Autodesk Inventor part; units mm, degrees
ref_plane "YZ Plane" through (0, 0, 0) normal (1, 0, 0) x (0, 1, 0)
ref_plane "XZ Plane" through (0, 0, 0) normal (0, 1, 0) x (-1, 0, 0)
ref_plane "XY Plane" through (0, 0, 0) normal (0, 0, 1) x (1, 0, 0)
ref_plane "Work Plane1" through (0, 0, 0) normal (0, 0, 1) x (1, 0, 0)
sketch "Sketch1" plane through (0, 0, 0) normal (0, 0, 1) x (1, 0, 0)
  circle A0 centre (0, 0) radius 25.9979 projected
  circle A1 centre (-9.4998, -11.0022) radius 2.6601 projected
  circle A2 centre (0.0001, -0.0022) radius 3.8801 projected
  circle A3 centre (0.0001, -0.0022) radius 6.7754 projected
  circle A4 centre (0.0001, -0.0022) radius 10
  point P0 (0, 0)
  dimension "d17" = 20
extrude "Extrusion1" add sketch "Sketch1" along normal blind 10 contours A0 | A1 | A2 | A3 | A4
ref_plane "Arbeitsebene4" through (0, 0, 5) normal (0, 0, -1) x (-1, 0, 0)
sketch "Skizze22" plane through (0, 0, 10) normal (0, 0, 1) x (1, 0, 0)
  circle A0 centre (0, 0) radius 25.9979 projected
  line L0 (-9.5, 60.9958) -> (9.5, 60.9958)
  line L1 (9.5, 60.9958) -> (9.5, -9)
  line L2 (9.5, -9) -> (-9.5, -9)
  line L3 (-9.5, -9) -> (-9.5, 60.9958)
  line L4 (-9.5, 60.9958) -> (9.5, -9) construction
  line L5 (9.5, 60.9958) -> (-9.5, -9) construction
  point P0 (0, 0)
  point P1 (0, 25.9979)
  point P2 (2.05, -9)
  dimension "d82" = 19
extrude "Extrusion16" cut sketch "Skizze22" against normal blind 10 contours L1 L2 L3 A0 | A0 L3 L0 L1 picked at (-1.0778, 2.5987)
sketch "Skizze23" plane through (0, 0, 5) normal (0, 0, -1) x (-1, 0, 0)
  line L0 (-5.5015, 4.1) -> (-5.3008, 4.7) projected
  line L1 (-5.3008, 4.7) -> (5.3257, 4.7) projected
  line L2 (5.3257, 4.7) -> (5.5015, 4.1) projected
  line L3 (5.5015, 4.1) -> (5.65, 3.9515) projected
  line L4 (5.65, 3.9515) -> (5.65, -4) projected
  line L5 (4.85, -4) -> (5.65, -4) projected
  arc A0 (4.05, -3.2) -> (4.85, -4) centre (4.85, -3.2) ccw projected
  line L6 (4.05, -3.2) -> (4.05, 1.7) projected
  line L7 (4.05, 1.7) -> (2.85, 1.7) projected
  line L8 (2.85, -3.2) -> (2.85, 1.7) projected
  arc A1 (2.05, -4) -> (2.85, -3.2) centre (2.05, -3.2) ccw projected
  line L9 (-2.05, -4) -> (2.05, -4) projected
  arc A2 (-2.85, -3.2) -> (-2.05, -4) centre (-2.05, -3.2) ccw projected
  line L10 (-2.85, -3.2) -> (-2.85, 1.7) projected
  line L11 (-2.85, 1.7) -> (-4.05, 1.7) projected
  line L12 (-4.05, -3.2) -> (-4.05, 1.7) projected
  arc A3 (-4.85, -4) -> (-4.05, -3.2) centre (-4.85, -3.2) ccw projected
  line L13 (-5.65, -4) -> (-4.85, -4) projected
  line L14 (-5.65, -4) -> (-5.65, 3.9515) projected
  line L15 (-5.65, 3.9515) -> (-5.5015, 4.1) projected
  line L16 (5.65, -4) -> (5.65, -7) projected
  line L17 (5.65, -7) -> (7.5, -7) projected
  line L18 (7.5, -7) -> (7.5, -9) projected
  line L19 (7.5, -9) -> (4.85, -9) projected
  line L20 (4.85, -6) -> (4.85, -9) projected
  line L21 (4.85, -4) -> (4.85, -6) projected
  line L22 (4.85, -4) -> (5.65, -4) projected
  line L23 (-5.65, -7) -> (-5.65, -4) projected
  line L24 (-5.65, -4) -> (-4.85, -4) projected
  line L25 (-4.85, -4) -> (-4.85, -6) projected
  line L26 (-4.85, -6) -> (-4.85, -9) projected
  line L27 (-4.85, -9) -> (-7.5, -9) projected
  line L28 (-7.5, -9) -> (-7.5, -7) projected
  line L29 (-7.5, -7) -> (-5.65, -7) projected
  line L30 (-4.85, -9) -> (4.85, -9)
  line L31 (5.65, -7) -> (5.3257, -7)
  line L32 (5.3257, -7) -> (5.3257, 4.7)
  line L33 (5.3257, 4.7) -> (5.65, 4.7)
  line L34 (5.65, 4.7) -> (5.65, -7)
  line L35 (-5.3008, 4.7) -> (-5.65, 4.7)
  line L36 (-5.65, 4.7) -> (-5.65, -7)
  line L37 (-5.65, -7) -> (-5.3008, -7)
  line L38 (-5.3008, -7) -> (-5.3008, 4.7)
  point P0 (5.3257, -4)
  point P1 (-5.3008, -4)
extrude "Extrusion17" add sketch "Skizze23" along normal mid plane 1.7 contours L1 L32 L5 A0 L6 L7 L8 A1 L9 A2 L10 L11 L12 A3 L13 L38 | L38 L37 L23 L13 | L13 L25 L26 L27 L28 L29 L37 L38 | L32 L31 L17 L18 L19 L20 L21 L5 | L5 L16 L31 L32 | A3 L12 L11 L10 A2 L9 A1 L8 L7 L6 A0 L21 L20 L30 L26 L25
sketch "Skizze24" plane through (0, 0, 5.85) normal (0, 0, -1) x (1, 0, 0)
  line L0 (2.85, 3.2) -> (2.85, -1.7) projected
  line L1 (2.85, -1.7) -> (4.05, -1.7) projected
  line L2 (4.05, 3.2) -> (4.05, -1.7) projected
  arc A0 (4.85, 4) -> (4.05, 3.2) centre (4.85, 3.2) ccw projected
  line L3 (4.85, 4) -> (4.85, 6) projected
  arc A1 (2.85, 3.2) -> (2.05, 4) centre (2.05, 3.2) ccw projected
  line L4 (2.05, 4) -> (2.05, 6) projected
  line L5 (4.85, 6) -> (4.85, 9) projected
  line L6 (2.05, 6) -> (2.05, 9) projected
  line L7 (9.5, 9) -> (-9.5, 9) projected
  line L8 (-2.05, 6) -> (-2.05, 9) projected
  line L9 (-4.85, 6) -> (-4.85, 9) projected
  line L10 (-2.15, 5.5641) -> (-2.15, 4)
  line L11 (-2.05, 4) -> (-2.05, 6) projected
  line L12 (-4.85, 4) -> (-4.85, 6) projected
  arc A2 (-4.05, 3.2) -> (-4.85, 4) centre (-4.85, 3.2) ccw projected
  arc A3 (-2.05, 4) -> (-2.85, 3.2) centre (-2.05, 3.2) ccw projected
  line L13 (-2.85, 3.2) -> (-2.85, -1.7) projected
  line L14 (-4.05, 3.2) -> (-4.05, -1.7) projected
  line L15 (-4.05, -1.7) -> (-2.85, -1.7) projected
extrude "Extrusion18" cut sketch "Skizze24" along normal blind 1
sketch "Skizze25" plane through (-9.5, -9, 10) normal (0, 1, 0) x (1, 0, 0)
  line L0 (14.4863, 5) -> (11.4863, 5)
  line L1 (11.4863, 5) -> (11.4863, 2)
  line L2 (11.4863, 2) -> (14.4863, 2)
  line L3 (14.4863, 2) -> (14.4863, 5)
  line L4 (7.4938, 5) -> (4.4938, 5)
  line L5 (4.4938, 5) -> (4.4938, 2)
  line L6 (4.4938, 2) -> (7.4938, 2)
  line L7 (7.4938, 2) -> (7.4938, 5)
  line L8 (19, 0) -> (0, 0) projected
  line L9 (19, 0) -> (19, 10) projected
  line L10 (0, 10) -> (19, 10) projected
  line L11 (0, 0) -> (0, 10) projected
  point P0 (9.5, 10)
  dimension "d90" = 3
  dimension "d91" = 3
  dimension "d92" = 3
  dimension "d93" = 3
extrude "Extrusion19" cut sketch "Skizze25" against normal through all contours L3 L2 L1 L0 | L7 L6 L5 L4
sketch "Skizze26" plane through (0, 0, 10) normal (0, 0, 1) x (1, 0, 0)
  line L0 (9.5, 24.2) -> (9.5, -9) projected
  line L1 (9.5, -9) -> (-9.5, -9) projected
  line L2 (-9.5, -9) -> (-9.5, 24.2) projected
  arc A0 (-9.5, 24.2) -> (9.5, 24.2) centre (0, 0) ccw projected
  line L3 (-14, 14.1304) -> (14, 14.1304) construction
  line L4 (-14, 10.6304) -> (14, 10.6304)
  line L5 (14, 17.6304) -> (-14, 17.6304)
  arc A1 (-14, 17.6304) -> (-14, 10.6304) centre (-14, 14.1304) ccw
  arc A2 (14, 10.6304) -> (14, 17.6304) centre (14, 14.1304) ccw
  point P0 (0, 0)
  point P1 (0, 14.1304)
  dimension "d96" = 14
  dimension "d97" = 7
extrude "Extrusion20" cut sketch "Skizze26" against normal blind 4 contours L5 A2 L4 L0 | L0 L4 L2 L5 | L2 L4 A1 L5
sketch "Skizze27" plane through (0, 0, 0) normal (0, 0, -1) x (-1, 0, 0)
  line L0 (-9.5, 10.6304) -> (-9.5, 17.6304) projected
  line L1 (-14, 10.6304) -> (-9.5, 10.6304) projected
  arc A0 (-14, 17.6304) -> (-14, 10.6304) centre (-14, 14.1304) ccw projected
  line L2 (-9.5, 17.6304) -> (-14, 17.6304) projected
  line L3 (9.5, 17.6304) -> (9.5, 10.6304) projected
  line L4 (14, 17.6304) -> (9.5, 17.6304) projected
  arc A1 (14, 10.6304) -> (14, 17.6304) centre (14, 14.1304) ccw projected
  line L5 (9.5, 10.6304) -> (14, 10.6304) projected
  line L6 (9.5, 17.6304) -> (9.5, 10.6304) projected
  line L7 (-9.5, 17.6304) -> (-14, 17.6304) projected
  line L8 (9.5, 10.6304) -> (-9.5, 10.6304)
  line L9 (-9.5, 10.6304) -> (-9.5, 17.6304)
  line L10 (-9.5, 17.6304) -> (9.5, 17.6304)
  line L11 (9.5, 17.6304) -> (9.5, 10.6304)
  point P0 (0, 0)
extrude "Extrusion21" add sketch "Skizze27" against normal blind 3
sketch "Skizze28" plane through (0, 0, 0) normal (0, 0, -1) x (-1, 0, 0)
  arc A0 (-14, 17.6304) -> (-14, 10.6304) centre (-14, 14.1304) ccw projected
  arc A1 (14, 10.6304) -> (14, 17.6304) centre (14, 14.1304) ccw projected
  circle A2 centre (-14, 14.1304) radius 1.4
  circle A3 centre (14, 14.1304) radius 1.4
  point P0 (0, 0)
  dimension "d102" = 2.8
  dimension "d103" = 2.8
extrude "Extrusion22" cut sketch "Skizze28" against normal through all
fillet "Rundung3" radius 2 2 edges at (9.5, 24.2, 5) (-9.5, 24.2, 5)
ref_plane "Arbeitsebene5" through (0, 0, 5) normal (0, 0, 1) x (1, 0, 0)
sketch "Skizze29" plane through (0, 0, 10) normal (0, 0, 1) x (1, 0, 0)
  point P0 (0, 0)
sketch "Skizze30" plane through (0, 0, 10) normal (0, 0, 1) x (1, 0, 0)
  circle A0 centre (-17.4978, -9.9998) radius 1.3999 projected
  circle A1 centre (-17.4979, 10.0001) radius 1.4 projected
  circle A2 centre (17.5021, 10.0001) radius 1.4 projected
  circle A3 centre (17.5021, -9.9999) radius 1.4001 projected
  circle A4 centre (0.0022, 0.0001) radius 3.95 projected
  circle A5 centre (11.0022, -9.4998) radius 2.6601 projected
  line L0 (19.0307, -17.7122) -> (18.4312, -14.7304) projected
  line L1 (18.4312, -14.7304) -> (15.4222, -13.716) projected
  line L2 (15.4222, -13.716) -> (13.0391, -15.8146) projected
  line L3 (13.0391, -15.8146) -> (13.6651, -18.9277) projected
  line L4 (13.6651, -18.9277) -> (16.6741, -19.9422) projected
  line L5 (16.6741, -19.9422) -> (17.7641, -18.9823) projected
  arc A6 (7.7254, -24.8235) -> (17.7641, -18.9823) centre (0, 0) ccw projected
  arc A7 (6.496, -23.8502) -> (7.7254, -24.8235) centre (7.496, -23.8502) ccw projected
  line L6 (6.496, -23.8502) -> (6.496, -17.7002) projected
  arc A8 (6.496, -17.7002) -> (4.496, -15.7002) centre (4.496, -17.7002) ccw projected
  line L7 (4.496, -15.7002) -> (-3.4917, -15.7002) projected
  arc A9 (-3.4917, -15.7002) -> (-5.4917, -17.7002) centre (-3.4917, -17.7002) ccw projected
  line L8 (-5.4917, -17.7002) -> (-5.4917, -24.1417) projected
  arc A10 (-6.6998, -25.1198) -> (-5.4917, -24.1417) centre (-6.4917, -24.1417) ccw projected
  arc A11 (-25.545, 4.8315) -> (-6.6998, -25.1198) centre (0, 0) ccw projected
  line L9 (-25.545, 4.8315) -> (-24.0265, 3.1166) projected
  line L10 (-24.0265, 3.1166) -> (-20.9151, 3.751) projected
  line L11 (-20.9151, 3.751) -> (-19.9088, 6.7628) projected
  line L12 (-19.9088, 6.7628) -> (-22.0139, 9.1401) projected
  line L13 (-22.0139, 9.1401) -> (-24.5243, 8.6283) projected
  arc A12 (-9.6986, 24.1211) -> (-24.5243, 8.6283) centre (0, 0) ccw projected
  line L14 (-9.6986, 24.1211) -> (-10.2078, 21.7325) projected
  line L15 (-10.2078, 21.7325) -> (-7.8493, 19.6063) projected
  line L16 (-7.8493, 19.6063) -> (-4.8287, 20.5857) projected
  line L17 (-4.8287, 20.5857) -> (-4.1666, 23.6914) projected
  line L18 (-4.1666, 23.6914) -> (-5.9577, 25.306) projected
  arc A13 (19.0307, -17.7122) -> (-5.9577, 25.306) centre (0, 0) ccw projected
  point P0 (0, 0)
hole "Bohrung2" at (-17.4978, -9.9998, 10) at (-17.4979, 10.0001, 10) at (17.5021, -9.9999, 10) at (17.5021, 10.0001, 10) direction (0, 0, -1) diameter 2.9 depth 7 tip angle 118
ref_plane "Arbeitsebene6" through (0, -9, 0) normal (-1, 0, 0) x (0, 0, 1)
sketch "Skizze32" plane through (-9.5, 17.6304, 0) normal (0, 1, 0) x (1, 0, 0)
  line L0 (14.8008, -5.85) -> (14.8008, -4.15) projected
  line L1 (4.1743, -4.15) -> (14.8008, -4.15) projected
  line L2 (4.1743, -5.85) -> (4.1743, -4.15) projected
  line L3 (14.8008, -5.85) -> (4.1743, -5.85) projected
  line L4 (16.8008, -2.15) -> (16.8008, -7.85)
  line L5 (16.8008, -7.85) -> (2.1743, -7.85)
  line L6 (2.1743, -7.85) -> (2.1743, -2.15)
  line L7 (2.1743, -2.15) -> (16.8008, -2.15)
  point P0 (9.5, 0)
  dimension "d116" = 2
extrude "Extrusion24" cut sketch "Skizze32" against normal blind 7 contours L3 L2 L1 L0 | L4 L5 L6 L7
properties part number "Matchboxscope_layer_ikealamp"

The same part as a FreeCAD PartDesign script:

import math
import FreeCAD as App
import Part
import Sketcher

V = App.Vector


def edges_at(feature, points):
    """Names of the edges that pass closest to the given points."""
    edges = feature.Shape.Edges
    near = lambda p: min(range(len(edges)), key=lambda i: edges[i].distToShape(Part.Vertex(*p))[0])
    return sorted({f"Edge{near(p) + 1}" for p in points})


def add_polygon(sketch, points):
    """Adds a closed chain of lines whose ends are joined by coincident constraints."""
    first, n = sketch.GeometryCount, len(points)
    for a, b in zip(points, points[1:] + points[:1]):
        sketch.addGeometry(Part.LineSegment(App.Vector(*a, 0), App.Vector(*b, 0)), False)
    for i in range(n):
        sketch.addConstraint(Sketcher.Constraint("Coincident", first + i, 2, first + (i + 1) % n, 1))

doc = App.newDocument("Part")
body = doc.addObject("PartDesign::Body", "Body")

# Sketch on XY plane
sketch1 = body.newObject("Sketcher::SketchObject", "Sketch")
sketch1.AttachmentSupport = (doc.getObject("XY_Plane"), [""])
sketch1.MapMode = "FlatFace"
sketch1.addGeometry(Part.Circle(V(0, 0, 0), V(0, 0, 1), 25.9979), False)
sketch1.addConstraint([
    Sketcher.Constraint("Coincident", 0, 3, -1, 1),
    Sketcher.Constraint("Diameter", 0, 51.9958),
])
pad1 = body.newObject("PartDesign::Pad", "Pad")
pad1.Profile = sketch1
pad1.Length = 10

# Sketch on XY plane
sketch2 = body.newObject("Sketcher::SketchObject", "Sketch001")
sketch2.AttachmentSupport = (doc.getObject("XY_Plane"), [""])
sketch2.MapMode = "FlatFace"
sketch2.AttachmentOffset = App.Placement(V(0, 0, 10), App.Rotation())
add_polygon(sketch2, [(9.5, -9), (9.5, 60.9958), (-9.5, 60.9958), (-9.5, -9)])  # lines 0-3
sketch2.addConstraint([
    Sketcher.Constraint("Vertical", 0),
    Sketcher.Constraint("Horizontal", 1),
    Sketcher.Constraint("Vertical", 2),
    Sketcher.Constraint("Horizontal", 3),
    Sketcher.Constraint("DistanceX", 1, 2, 1, 1, 19.0),
    Sketcher.Constraint("DistanceY", 2, 2, -1, 1, 9.0),
    Sketcher.Constraint("DistanceX", -1, 1, 0, 2, 9.5),
    Sketcher.Constraint("DistanceY", 0, 1, 0, 2, 69.9958),
])
pocket1 = body.newObject("PartDesign::Pocket", "Pocket")
pocket1.Profile = sketch2
pocket1.Length = 10

# Sketch on XY plane
sketch3 = body.newObject("Sketcher::SketchObject", "Sketch002")
sketch3.AttachmentSupport = (doc.getObject("XY_Plane"), [""])
sketch3.MapMode = "FlatFace"
sketch3.AttachmentOffset = App.Placement(V(0, 0, 5), App.Rotation())
add_polygon(sketch3, [(-5.3257, 4.7), (5.3008, 4.7), (5.3008, -4), (5.65, -4), (5.65, -7), (7.5, -7), (7.5, -9), (-7.5, -9), (-7.5, -7), (-5.65, -7), (-5.65, -4), (-5.3257, -4)])  # lines 0-11
sketch3.addConstraint([
    Sketcher.Constraint("Horizontal", 0),
    Sketcher.Constraint("Vertical", 1),
    Sketcher.Constraint("Horizontal", 2),
    Sketcher.Constraint("Vertical", 3),
    Sketcher.Constraint("Horizontal", 4),
    Sketcher.Constraint("Vertical", 5),
    Sketcher.Constraint("Horizontal", 6),
    Sketcher.Constraint("Vertical", 7),
    Sketcher.Constraint("Horizontal", 8),
    Sketcher.Constraint("Vertical", 9),
    Sketcher.Constraint("Horizontal", 10),
    Sketcher.Constraint("Vertical", 11),
    Sketcher.Constraint("Symmetric", 4, 2, 7, 2, -2),
    Sketcher.Constraint("Symmetric", 2, 2, 9, 2, -2),
    Sketcher.Constraint("DistanceX", 6, 2, 6, 1, 15.0),
    Sketcher.Constraint("DistanceY", 3, 2, 3, 1, 3.0),
    Sketcher.Constraint("DistanceY", 5, 2, 5, 1, 2.0),
    Sketcher.Constraint("DistanceY", 1, 2, 1, 1, 8.7),
    Sketcher.Constraint("DistanceY", 1, 2, -1, 1, 4.0),
    Sketcher.Constraint("DistanceX", 4, 1, 4, 2, 1.85),
    Sketcher.Constraint("DistanceX", 0, 1, 0, 2, 10.6265),
    Sketcher.Constraint("DistanceX", 2, 1, 2, 2, 0.3492),
])
pad2 = body.newObject("PartDesign::Pad", "Pad001")
pad2.Profile = sketch3
pad2.Length = 1.7
pad2.Midplane = True

# Sketch on XY plane
sketch4 = body.newObject("Sketcher::SketchObject", "Sketch003")
sketch4.AttachmentSupport = (doc.getObject("XY_Plane"), [""])
sketch4.MapMode = "FlatFace"
sketch4.AttachmentOffset = App.Placement(V(0, 0, 5.85), App.Rotation())
sketch4.addGeometry([
    Part.ArcOfCircle(Part.Circle(V(2.05, -3.2, 0), V(0, 0, 1), 0.8), math.radians(-90), math.radians(0)),  # 0
    Part.LineSegment(V(2.85, -3.2, 0), V(2.85, 1.7, 0)),  # 1
    Part.LineSegment(V(2.85, 1.7, 0), V(4.05, 1.7, 0)),  # 2
    Part.LineSegment(V(4.05, 1.7, 0), V(4.05, -3.2, 0)),  # 3
    Part.ArcOfCircle(Part.Circle(V(4.85, -3.2, 0), V(0, 0, 1), 0.8), math.radians(180), math.radians(270)),  # 4
    Part.LineSegment(V(4.85, -4, 0), V(4.85, -9, 0)),  # 5
    Part.LineSegment(V(4.85, -9, 0), V(2.05, -9, 0)),  # 6
    Part.LineSegment(V(2.05, -9, 0), V(2.05, -4, 0)),  # 7
    Part.LineSegment(V(-2.05, -4, 0), V(-2.05, -9, 0)),  # 8
    Part.LineSegment(V(-2.05, -9, 0), V(-4.85, -9, 0)),  # 9
    Part.LineSegment(V(-4.85, -9, 0), V(-4.85, -4, 0)),  # 10
    Part.ArcOfCircle(Part.Circle(V(-4.85, -3.2, 0), V(0, 0, 1), 0.8), math.radians(-90), math.radians(0)),  # 11
    Part.LineSegment(V(-4.05, -3.2, 0), V(-4.05, 1.7, 0)),  # 12
    Part.LineSegment(V(-4.05, 1.7, 0), V(-2.85, 1.7, 0)),  # 13
    Part.LineSegment(V(-2.85, 1.7, 0), V(-2.85, -3.2, 0)),  # 14
    Part.ArcOfCircle(Part.Circle(V(-2.05, -3.2, 0), V(0, 0, 1), 0.8), math.radians(180), math.radians(270)),  # 15
], False)
sketch4.addConstraint([
    Sketcher.Constraint("Tangent", 0, 2, 1, 1),
    Sketcher.Constraint("Coincident", 1, 2, 2, 1),
    Sketcher.Constraint("Coincident", 2, 2, 3, 1),
    Sketcher.Constraint("Tangent", 3, 2, 4, 1),
    Sketcher.Constraint("Coincident", 4, 2, 5, 1),
    Sketcher.Constraint("Coincident", 5, 2, 6, 1),
    Sketcher.Constraint("Coincident", 6, 2, 7, 1),
    Sketcher.Constraint("Coincident", 7, 2, 0, 1),
    Sketcher.Constraint("Coincident", 8, 2, 9, 1),
    Sketcher.Constraint("Coincident", 9, 2, 10, 1),
    Sketcher.Constraint("Coincident", 10, 2, 11, 1),
    Sketcher.Constraint("Tangent", 11, 2, 12, 1),
    Sketcher.Constraint("Coincident", 12, 2, 13, 1),
    Sketcher.Constraint("Coincident", 13, 2, 14, 1),
    Sketcher.Constraint("Tangent", 14, 2, 15, 1),
    Sketcher.Constraint("Coincident", 15, 2, 8, 1),
    Sketcher.Constraint("Vertical", 1),
    Sketcher.Constraint("Horizontal", 2),
    Sketcher.Constraint("Vertical", 3),
    Sketcher.Constraint("Vertical", 5),
    Sketcher.Constraint("Horizontal", 6),
    Sketcher.Constraint("Vertical", 7),
    Sketcher.Constraint("Vertical", 8),
    Sketcher.Constraint("Horizontal", 9),
    Sketcher.Constraint("Vertical", 10),
    Sketcher.Constraint("Vertical", 12),
    Sketcher.Constraint("Horizontal", 13),
    Sketcher.Constraint("Vertical", 14),
    Sketcher.Constraint("Equal", 0, 4),
    Sketcher.Constraint("Equal", 4, 11),
    Sketcher.Constraint("Equal", 11, 15),
    Sketcher.Constraint("Symmetric", 4, 3, 11, 3, -2),
    Sketcher.Constraint("Symmetric", 0, 3, 15, 3, -2),
    Sketcher.Constraint("Symmetric", 6, 2, 8, 2, -2),
    Sketcher.Constraint("Horizontal", 0, 3, 4, 3),
    Sketcher.Constraint("Horizontal", 2, 2, 12, 2),
    Sketcher.Constraint("Vertical", 0, 3, 6, 2),
    Sketcher.Constraint("Vertical", 11, 3, 9, 2),
    Sketcher.Constraint("Equal", 6, 9),
    Sketcher.Constraint("Radius", 0, 0.8),
    Sketcher.Constraint("DistanceY", 5, 2, 5, 1, 5.0),
    Sketcher.Constraint("DistanceX", 2, 1, 2, 2, 1.2),
    Sketcher.Constraint("DistanceY", 1, 1, 1, 2, 4.9),
    Sketcher.Constraint("DistanceY", 4, 2, -1, 1, 4.0),
    Sketcher.Constraint("DistanceX", 11, 3, 0, 3, 6.9),
])
pocket2 = body.newObject("PartDesign::Pocket", "Pocket001")
pocket2.Profile = sketch4
pocket2.Length = 1

# Sketch on XZ plane
sketch5 = body.newObject("Sketcher::SketchObject", "Sketch004")
sketch5.AttachmentSupport = (doc.getObject("XZ_Plane"), [""])
sketch5.MapMode = "FlatFace"
sketch5.AttachmentOffset = App.Placement(V(0, 0, 9), App.Rotation())
add_polygon(sketch5, [(4.9863, 8), (4.9863, 5), (1.9863, 5), (1.9863, 8)])  # lines 0-3
add_polygon(sketch5, [(-2.0062, 8), (-2.0062, 5), (-5.0062, 5), (-5.0062, 8)])  # lines 4-7
sketch5.addConstraint([
    Sketcher.Constraint("Vertical", 0),
    Sketcher.Constraint("Horizontal", 1),
    Sketcher.Constraint("Vertical", 2),
    Sketcher.Constraint("Horizontal", 3),
    Sketcher.Constraint("Vertical", 4),
    Sketcher.Constraint("Horizontal", 5),
    Sketcher.Constraint("Vertical", 6),
    Sketcher.Constraint("Horizontal", 7),
    Sketcher.Constraint("Horizontal", 1, 2, 4, 2),
    Sketcher.Constraint("Horizontal", 3, 2, 6, 2),
    Sketcher.Constraint("Equal", 3, 5),
    Sketcher.Constraint("Equal", 7, 0),
    Sketcher.Constraint("DistanceX", 1, 2, 1, 1, 3.0),
    Sketcher.Constraint("DistanceY", -1, 1, 0, 2, 5.0),
    Sketcher.Constraint("DistanceX", -1, 1, 0, 2, 4.9863),
    Sketcher.Constraint("DistanceX", 4, 2, -1, 1, 2.0062),
])
pocket3 = body.newObject("PartDesign::Pocket", "Pocket002")
pocket3.Profile = sketch5
pocket3.Type = "ThroughAll"
pocket3.Reversed = True

# Sketch on XY plane
sketch6 = body.newObject("Sketcher::SketchObject", "Sketch005")
sketch6.AttachmentSupport = (doc.getObject("XY_Plane"), [""])
sketch6.MapMode = "FlatFace"
sketch6.AttachmentOffset = App.Placement(V(0, 0, 10), App.Rotation())
sketch6.addGeometry([
    Part.LineSegment(V(14, 17.6304, 0), V(-14, 17.6304, 0)),
    Part.ArcOfCircle(Part.Circle(V(-14, 14.1304, 0), V(0, 0, 1), 3.5), math.radians(90), math.radians(270)),
    Part.LineSegment(V(-14, 10.6304, 0), V(14, 10.6304, 0)),
    Part.ArcOfCircle(Part.Circle(V(14, 14.1304, 0), V(0, 0, 1), 3.5), math.radians(-90), math.radians(90)),
], False)
sketch6.addConstraint([
    Sketcher.Constraint("Tangent", 0, 2, 1, 1),
    Sketcher.Constraint("Tangent", 1, 2, 2, 1),
    Sketcher.Constraint("Tangent", 2, 2, 3, 1),
    Sketcher.Constraint("Tangent", 3, 2, 0, 1),
    Sketcher.Constraint("Horizontal", 0),
    Sketcher.Constraint("Horizontal", 2),
    Sketcher.Constraint("Radius", 1, 3.5),
    Sketcher.Constraint("DistanceX", 1, 3, -1, 1, 14.0),
    Sketcher.Constraint("DistanceX", -1, 1, 3, 3, 14.0),
    Sketcher.Constraint("DistanceY", -1, 1, 1, 3, 14.1304),
])
pocket4 = body.newObject("PartDesign::Pocket", "Pocket003")
pocket4.Profile = sketch6
pocket4.Length = 4

# Sketch on XY plane
sketch7 = body.newObject("Sketcher::SketchObject", "Sketch006")
sketch7.AttachmentSupport = (doc.getObject("XY_Plane"), [""])
sketch7.MapMode = "FlatFace"
sketch7.addGeometry([
    Part.LineSegment(V(14, 10.6304, 0), V(-14, 10.6304, 0)),
    Part.ArcOfCircle(Part.Circle(V(-14, 14.1304, 0), V(0, 0, 1), 3.5), math.radians(90), math.radians(270)),
    Part.LineSegment(V(-14, 17.6304, 0), V(14, 17.6304, 0)),
    Part.ArcOfCircle(Part.Circle(V(14, 14.1304, 0), V(0, 0, 1), 3.5), math.radians(-90), math.radians(90)),
], False)
sketch7.addConstraint([
    Sketcher.Constraint("Tangent", 0, 2, 1, 2),
    Sketcher.Constraint("Tangent", 1, 1, 2, 1),
    Sketcher.Constraint("Tangent", 2, 2, 3, 2),
    Sketcher.Constraint("Tangent", 3, 1, 0, 1),
    Sketcher.Constraint("Horizontal", 0),
    Sketcher.Constraint("Horizontal", 2),
    Sketcher.Constraint("Radius", 1, 3.5),
    Sketcher.Constraint("DistanceX", 0, 2, 0, 1, 28.0),
    Sketcher.Constraint("DistanceX", 1, 3, -1, 1, 14.0),
    Sketcher.Constraint("DistanceY", -1, 1, 1, 3, 14.1304),
])
pad3 = body.newObject("PartDesign::Pad", "Pad002")
pad3.Profile = sketch7
pad3.Length = 3

# Sketch on XY plane
sketch8 = body.newObject("Sketcher::SketchObject", "Sketch007")
sketch8.AttachmentSupport = (doc.getObject("XY_Plane"), [""])
sketch8.MapMode = "FlatFace"
sketch8.addGeometry([
    Part.Circle(V(14, 14.1304, 0), V(0, 0, 1), 1.4),
    Part.Circle(V(-14, 14.1304, 0), V(0, 0, 1), 1.4),
], False)
sketch8.addConstraint([
    Sketcher.Constraint("Equal", 0, 1),
    Sketcher.Constraint("Symmetric", 0, 3, 1, 3, -2),
    Sketcher.Constraint("Diameter", 0, 2.8),
    Sketcher.Constraint("DistanceX", -1, 1, 0, 3, 14.0),
    Sketcher.Constraint("DistanceY", -1, 1, 0, 3, 14.1304),
])
pocket5 = body.newObject("PartDesign::Pocket", "Pocket004")
pocket5.Profile = sketch8
pocket5.Type = "ThroughAll"
pocket5.Reversed = True
doc.recompute()

fillet = body.newObject("PartDesign::Fillet", "Fillet")
fillet.Base = (pocket5, edges_at(pocket5, [(9.5, 24.2, 5), (-9.5, 24.2, 5)]))
fillet.Radius = 2

# Sketch on XY plane
sketch9 = body.newObject("Sketcher::SketchObject", "Sketch008")
sketch9.AttachmentSupport = (doc.getObject("XY_Plane"), [""])
sketch9.MapMode = "FlatFace"
sketch9.AttachmentOffset = App.Placement(V(0, 0, 10), App.Rotation())
sketch9.addGeometry([
    Part.Circle(V(-17.4978, -9.9998, 0), V(0, 0, 1), 1.45),
    Part.Circle(V(-17.4979, 10.0001, 0), V(0, 0, 1), 1.45),
    Part.Circle(V(17.5021, -9.9999, 0), V(0, 0, 1), 1.45),
    Part.Circle(V(17.5021, 10.0001, 0), V(0, 0, 1), 1.45),
], False)
sketch9.addConstraint([
    Sketcher.Constraint("Equal", 0, 1),
    Sketcher.Constraint("Equal", 1, 2),
    Sketcher.Constraint("Equal", 2, 3),
    Sketcher.Constraint("Symmetric", 0, 3, 1, 3, -1),
    Sketcher.Constraint("Symmetric", 2, 3, 3, 3, -1),
    Sketcher.Constraint("Horizontal", 0, 3, 2, 3),
    Sketcher.Constraint("Diameter", 0, 2.9),
    Sketcher.Constraint("DistanceY", -1, 1, 1, 3, 10.0),
    Sketcher.Constraint("DistanceX", 0, 3, 2, 3, 35.0),
    Sketcher.Constraint("DistanceX", 1, 3, -1, 1, 17.498),
])
doc.recompute()
hole = body.newObject("PartDesign::Hole", "Hole")
hole.Profile = sketch9
hole.ThreadType = "None"
hole.Diameter = 2.9
hole.DepthType = "Dimension"
hole.Depth = 7
hole.DrillPoint = "Angled"
hole.DrillPointAngle = 118

# Sketch on XZ plane
sketch10 = body.newObject("Sketcher::SketchObject", "Sketch009")
sketch10.AttachmentSupport = (doc.getObject("XZ_Plane"), [""])
sketch10.MapMode = "FlatFace"
sketch10.AttachmentOffset = App.Placement(V(0, 0, -17.6304), App.Rotation())
add_polygon(sketch10, [(7.3008, 7.85), (7.3008, 2.15), (-7.3257, 2.15), (-7.3257, 7.85)])  # lines 0-3
sketch10.addConstraint([
    Sketcher.Constraint("Vertical", 0),
    Sketcher.Constraint("Horizontal", 1),
    Sketcher.Constraint("Vertical", 2),
    Sketcher.Constraint("Horizontal", 3),
    Sketcher.Constraint("DistanceY", 0, 2, 0, 1, 5.7),
    Sketcher.Constraint("DistanceY", -1, 1, 0, 2, 2.15),
    Sketcher.Constraint("DistanceX", 1, 2, 1, 1, 14.6265),
    Sketcher.Constraint("DistanceX", -1, 1, 0, 2, 7.3008),
])
pocket6 = body.newObject("PartDesign::Pocket", "Pocket005")
pocket6.Profile = sketch10
pocket6.Length = 7
pocket6.Reversed = True

doc.recompute()
